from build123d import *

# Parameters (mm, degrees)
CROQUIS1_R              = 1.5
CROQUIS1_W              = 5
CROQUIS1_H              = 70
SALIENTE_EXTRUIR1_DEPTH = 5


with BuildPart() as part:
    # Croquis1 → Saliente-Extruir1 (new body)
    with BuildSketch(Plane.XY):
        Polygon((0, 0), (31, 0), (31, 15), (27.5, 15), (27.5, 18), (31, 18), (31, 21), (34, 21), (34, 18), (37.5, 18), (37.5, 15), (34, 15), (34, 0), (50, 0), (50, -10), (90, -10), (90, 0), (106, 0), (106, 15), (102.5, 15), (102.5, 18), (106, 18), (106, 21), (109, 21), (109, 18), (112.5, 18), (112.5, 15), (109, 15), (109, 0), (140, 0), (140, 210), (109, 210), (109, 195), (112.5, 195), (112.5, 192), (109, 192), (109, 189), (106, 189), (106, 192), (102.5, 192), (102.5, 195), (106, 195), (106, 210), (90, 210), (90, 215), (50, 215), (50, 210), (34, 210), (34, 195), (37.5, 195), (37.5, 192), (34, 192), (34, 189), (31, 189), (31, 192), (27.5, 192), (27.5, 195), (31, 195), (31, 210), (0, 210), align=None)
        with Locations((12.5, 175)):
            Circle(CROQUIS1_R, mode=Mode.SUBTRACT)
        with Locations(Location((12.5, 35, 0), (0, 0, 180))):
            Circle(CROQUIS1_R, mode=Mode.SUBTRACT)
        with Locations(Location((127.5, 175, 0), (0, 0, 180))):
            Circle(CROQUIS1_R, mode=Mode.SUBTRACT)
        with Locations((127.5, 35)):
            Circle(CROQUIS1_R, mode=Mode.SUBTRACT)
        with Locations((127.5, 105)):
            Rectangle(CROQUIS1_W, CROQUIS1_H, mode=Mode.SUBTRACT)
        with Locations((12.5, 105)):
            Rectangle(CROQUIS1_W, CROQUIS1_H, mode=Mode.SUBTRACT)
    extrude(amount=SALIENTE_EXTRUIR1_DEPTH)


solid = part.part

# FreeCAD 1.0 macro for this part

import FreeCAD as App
import Part
import Sketcher
from FreeCAD import Vector
Q = App.Units.Quantity


def add_polygon(sketch, points):
    """Adds a closed chain of lines whose ends are joined by coincident constraints."""
    first, n = sketch.GeometryCount, len(points)
    for a, b in zip(points, points[1:] + points[:1]):
        sketch.addGeometry(Part.LineSegment(App.Vector(*a, 0), App.Vector(*b, 0)), False)
    for i in range(n):
        sketch.addConstraint(Sketcher.Constraint("Coincident", first + i, 2, first + (i + 1) % n, 1))

doc = App.newDocument("Part")
body = doc.addObject("PartDesign::Body", "Body")

# Sketch on XY plane
sketch1 = body.newObject("Sketcher::SketchObject", "Sketch")
sketch1.AttachmentSupport = (doc.getObject("XY_Plane"), [""])
sketch1.MapMode = "FlatFace"
add_polygon(sketch1, [(0, 0), (31, 0), (31, 15), (27.5, 15), (27.5, 18), (31, 18), (31, 21), (34, 21), (34, 18), (37.5, 18), (37.5, 15), (34, 15), (34, 0), (50, 0), (50, -10), (90, -10), (90, 0), (106, 0), (106, 15), (102.5, 15), (102.5, 18), (106, 18), (106, 21), (109, 21), (109, 18), (112.5, 18), (112.5, 15), (109, 15), (109, 0), (140, 0), (140, 210), (109, 210), (109, 195), (112.5, 195), (112.5, 192), (109, 192), (109, 189), (106, 189), (106, 192), (102.5, 192), (102.5, 195), (106, 195), (106, 210), (90, 210), (90, 215), (50, 215), (50, 210), (34, 210), (34, 195), (37.5, 195), (37.5, 192), (34, 192), (34, 189), (31, 189), (31, 192), (27.5, 192), (27.5, 195), (31, 195), (31, 210), (0, 210)])  # lines 0-59
sketch1.addGeometry(Part.Circle(Vector(12.5, 35, 0), Vector(0, 0, 1), 1.5), False)  # 60
sketch1.addGeometry(Part.Circle(Vector(127.5, 35, 0), Vector(0, 0, 1), 1.5), False)  # 61
add_polygon(sketch1, [(15, 70), (10, 70), (10, 140), (15, 140)])  # lines 62-65
sketch1.addGeometry(Part.Circle(Vector(12.5, 175, 0), Vector(0, 0, 1), 1.5), False)  # 66
add_polygon(sketch1, [(130, 70), (125, 70), (125, 140), (130, 140)])  # lines 67-70
sketch1.addGeometry(Part.Circle(Vector(127.5, 175, 0), Vector(0, 0, 1), 1.5), False)  # 71
sketch1.addConstraint(Sketcher.Constraint("Horizontal", 0))
sketch1.addConstraint(Sketcher.Constraint("Vertical", 1))
sketch1.addConstraint(Sketcher.Constraint("Horizontal", 2))
sketch1.addConstraint(Sketcher.Constraint("Vertical", 3))
sketch1.addConstraint(Sketcher.Constraint("Horizontal", 4))
sketch1.addConstraint(Sketcher.Constraint("Vertical", 5))
sketch1.addConstraint(Sketcher.Constraint("Horizontal", 6))
sketch1.addConstraint(Sketcher.Constraint("Vertical", 7))
sketch1.addConstraint(Sketcher.Constraint("Horizontal", 8))
sketch1.addConstraint(Sketcher.Constraint("Vertical", 9))
sketch1.addConstraint(Sketcher.Constraint("Horizontal", 10))
sketch1.addConstraint(Sketcher.Constraint("Vertical", 11))
sketch1.addConstraint(Sketcher.Constraint("Horizontal", 12))
sketch1.addConstraint(Sketcher.Constraint("Vertical", 13))
sketch1.addConstraint(Sketcher.Constraint("Horizontal", 14))
sketch1.addConstraint(Sketcher.Constraint("Vertical", 15))
sketch1.addConstraint(Sketcher.Constraint("Horizontal", 16))
sketch1.addConstraint(Sketcher.Constraint("Vertical", 17))
sketch1.addConstraint(Sketcher.Constraint("Horizontal", 18))
sketch1.addConstraint(Sketcher.Constraint("Vertical", 19))
sketch1.addConstraint(Sketcher.Constraint("Horizontal", 20))
sketch1.addConstraint(Sketcher.Constraint("Vertical", 21))
sketch1.addConstraint(Sketcher.Constraint("Horizontal", 22))
sketch1.addConstraint(Sketcher.Constraint("Vertical", 23))
sketch1.addConstraint(Sketcher.Constraint("Horizontal", 24))
sketch1.addConstraint(Sketcher.Constraint("Vertical", 25))
sketch1.addConstraint(Sketcher.Constraint("Horizontal", 26))
sketch1.addConstraint(Sketcher.Constraint("Vertical", 27))
sketch1.addConstraint(Sketcher.Constraint("Horizontal", 28))
sketch1.addConstraint(Sketcher.Constraint("Vertical", 29))
sketch1.addConstraint(Sketcher.Constraint("Horizontal", 30))
sketch1.addConstraint(Sketcher.Constraint("Vertical", 31))
sketch1.addConstraint(Sketcher.Constraint("Horizontal", 32))
sketch1.addConstraint(Sketcher.Constraint("Vertical", 33))
sketch1.addConstraint(Sketcher.Constraint("Horizontal", 34))
sketch1.addConstraint(Sketcher.Constraint("Vertical", 35))
sketch1.addConstraint(Sketcher.Constraint("Horizontal", 36))
sketch1.addConstraint(Sketcher.Constraint("Vertical", 37))
sketch1.addConstraint(Sketcher.Constraint("Horizontal", 38))
sketch1.addConstraint(Sketcher.Constraint("Vertical", 39))
sketch1.addConstraint(Sketcher.Constraint("Horizontal", 40))
sketch1.addConstraint(Sketcher.Constraint("Vertical", 41))
sketch1.addConstraint(Sketcher.Constraint("Horizontal", 42))
sketch1.addConstraint(Sketcher.Constraint("Vertical", 43))
sketch1.addConstraint(Sketcher.Constraint("Horizontal", 44))
sketch1.addConstraint(Sketcher.Constraint("Vertical", 45))
sketch1.addConstraint(Sketcher.Constraint("Horizontal", 46))
sketch1.addConstraint(Sketcher.Constraint("Vertical", 47))
sketch1.addConstraint(Sketcher.Constraint("Horizontal", 48))
sketch1.addConstraint(Sketcher.Constraint("Vertical", 49))
sketch1.addConstraint(Sketcher.Constraint("Horizontal", 50))
sketch1.addConstraint(Sketcher.Constraint("Vertical", 51))
sketch1.addConstraint(Sketcher.Constraint("Horizontal", 52))
sketch1.addConstraint(Sketcher.Constraint("Vertical", 53))
sketch1.addConstraint(Sketcher.Constraint("Horizontal", 54))
sketch1.addConstraint(Sketcher.Constraint("Vertical", 55))
sketch1.addConstraint(Sketcher.Constraint("Horizontal", 56))
sketch1.addConstraint(Sketcher.Constraint("Vertical", 57))
sketch1.addConstraint(Sketcher.Constraint("Horizontal", 58))
sketch1.addConstraint(Sketcher.Constraint("Vertical", 59))
sketch1.addConstraint(Sketcher.Constraint("Horizontal", 62))
sketch1.addConstraint(Sketcher.Constraint("Vertical", 63))
sketch1.addConstraint(Sketcher.Constraint("Horizontal", 64))
sketch1.addConstraint(Sketcher.Constraint("Vertical", 65))
sketch1.addConstraint(Sketcher.Constraint("Horizontal", 67))
sketch1.addConstraint(Sketcher.Constraint("Vertical", 68))
sketch1.addConstraint(Sketcher.Constraint("Horizontal", 69))
sketch1.addConstraint(Sketcher.Constraint("Vertical", 70))
sketch1.addConstraint(Sketcher.Constraint("Coincident", 59, 2, -1, 1))
sketch1.addConstraint(Sketcher.Constraint("Equal", 60, 61))
sketch1.addConstraint(Sketcher.Constraint("Equal", 61, 66))
sketch1.addConstraint(Sketcher.Constraint("Equal", 66, 71))
sketch1.addConstraint(Sketcher.Constraint("PointOnObject", 11, 2, -1))
sketch1.addConstraint(Sketcher.Constraint("PointOnObject", 15, 2, -1))
sketch1.addConstraint(Sketcher.Constraint("PointOnObject", 27, 2, -1))
sketch1.addConstraint(Sketcher.Constraint("Horizontal", 60, 3, 61, 3))
sketch1.addConstraint(Sketcher.Constraint("Horizontal", 66, 3, 71, 3))
sketch1.addConstraint(Sketcher.Constraint("Horizontal", 4, 2, 7, 2))
sketch1.addConstraint(Sketcher.Constraint("Horizontal", 2, 2, 9, 2))
sketch1.addConstraint(Sketcher.Constraint("Horizontal", 10, 2, 17, 2))
sketch1.addConstraint(Sketcher.Constraint("Horizontal", 8, 2, 19, 2))
sketch1.addConstraint(Sketcher.Constraint("Horizontal", 6, 2, 21, 2))
sketch1.addConstraint(Sketcher.Constraint("Horizontal", 20, 2, 23, 2))
sketch1.addConstraint(Sketcher.Constraint("Horizontal", 18, 2, 25, 2))
sketch1.addConstraint(Sketcher.Constraint("Horizontal", 34, 2, 37, 2))
sketch1.addConstraint(Sketcher.Constraint("Horizontal", 32, 2, 39, 2))
sketch1.addConstraint(Sketcher.Constraint("Horizontal", 30, 2, 41, 2))
sketch1.addConstraint(Sketcher.Constraint("Horizontal", 42, 2, 45, 2))
sketch1.addConstraint(Sketcher.Constraint("Horizontal", 40, 2, 47, 2))
sketch1.addConstraint(Sketcher.Constraint("Horizontal", 38, 2, 49, 2))
sketch1.addConstraint(Sketcher.Constraint("Horizontal", 36, 2, 51, 2))
sketch1.addConstraint(Sketcher.Constraint("Horizontal", 50, 2, 53, 2))
sketch1.addConstraint(Sketcher.Constraint("Horizontal", 48, 2, 55, 2))
sketch1.addConstraint(Sketcher.Constraint("Horizontal", 46, 2, 57, 2))
sketch1.addConstraint(Sketcher.Constraint("Horizontal", 65, 2, 67, 2))
sketch1.addConstraint(Sketcher.Constraint("Horizontal", 64, 2, 68, 2))
sketch1.addConstraint(Sketcher.Constraint("Vertical", 60, 3, 66, 3))
sketch1.addConstraint(Sketcher.Constraint("Vertical", 61, 3, 71, 3))
sketch1.addConstraint(Sketcher.Constraint("Vertical", 1, 2, 4, 2))
sketch1.addConstraint(Sketcher.Constraint("Vertical", 7, 2, 10, 2))
sketch1.addConstraint(Sketcher.Constraint("Vertical", 17, 2, 20, 2))
sketch1.addConstraint(Sketcher.Constraint("Vertical", 23, 2, 26, 2))
sketch1.addConstraint(Sketcher.Constraint("Vertical", 27, 2, 30, 2))
sketch1.addConstraint(Sketcher.Constraint("Vertical", 25, 2, 32, 2))
sketch1.addConstraint(Sketcher.Constraint("Vertical", 31, 2, 34, 2))
sketch1.addConstraint(Sketcher.Constraint("Vertical", 21, 2, 36, 2))
sketch1.addConstraint(Sketcher.Constraint("Vertical", 19, 2, 38, 2))
sketch1.addConstraint(Sketcher.Constraint("Vertical", 37, 2, 40, 2))
sketch1.addConstraint(Sketcher.Constraint("Vertical", 15, 2, 42, 2))
sketch1.addConstraint(Sketcher.Constraint("Vertical", 13, 2, 44, 2))
sketch1.addConstraint(Sketcher.Constraint("Vertical", 11, 2, 46, 2))
sketch1.addConstraint(Sketcher.Constraint("Vertical", 9, 2, 48, 2))
sketch1.addConstraint(Sketcher.Constraint("Vertical", 47, 2, 50, 2))
sketch1.addConstraint(Sketcher.Constraint("Vertical", 5, 2, 52, 2))
sketch1.addConstraint(Sketcher.Constraint("Vertical", 3, 2, 54, 2))
sketch1.addConstraint(Sketcher.Constraint("Vertical", 53, 2, 56, 2))
sketch1.addConstraint(Sketcher.Constraint("Equal", 4, 8))
sketch1.addConstraint(Sketcher.Constraint("Equal", 12, 16))
sketch1.addConstraint(Sketcher.Constraint("Equal", 10, 18))
sketch1.addConstraint(Sketcher.Constraint("Equal", 6, 22))
sketch1.addConstraint(Sketcher.Constraint("Equal", 20, 24))
sketch1.addConstraint(Sketcher.Constraint("Equal", 0, 28))
sketch1.addConstraint(Sketcher.Constraint("Equal", 64, 67))
sketch1.addConstraint(Sketcher.Constraint("Equal", 52, 3))
sketch1.addConstraint(Sketcher.Constraint("Equal", 3, 5))
sketch1.addConstraint(Sketcher.Constraint("Equal", 27, 31))
sketch1.addConstraint(Sketcher.Constraint("Equal", 25, 33))
sketch1.addConstraint(Sketcher.Constraint("Equal", 33, 35))
sketch1.addConstraint(Sketcher.Constraint("Equal", 69, 43))
sketch1.addConstraint(Sketcher.Constraint("Diameter", 60, Q("3 mm")))
sketch1.addConstraint(Sketcher.Constraint("DistanceX", 0, 1, 0, 2, Q("31 mm")))
sketch1.addConstraint(Sketcher.Constraint("DistanceX", 6, 1, 6, 2, Q("3 mm")))
sketch1.addConstraint(Sketcher.Constraint("DistanceX", 12, 1, 12, 2, Q("16 mm")))
sketch1.addConstraint(Sketcher.Constraint("DistanceX", 14, 1, 14, 2, Q("40 mm")))
sketch1.addConstraint(Sketcher.Constraint("DistanceX", 62, 2, 62, 1, Q("5 mm")))
sketch1.addConstraint(Sketcher.Constraint("DistanceY", 1, 1, 1, 2, Q("15 mm")))
sketch1.addConstraint(Sketcher.Constraint("DistanceY", 13, 2, 13, 1, Q("10 mm")))
sketch1.addConstraint(Sketcher.Constraint("DistanceY", 29, 1, 29, 2, Q("210 mm")))
sketch1.addConstraint(Sketcher.Constraint("DistanceY", 63, 1, 63, 2, Q("70 mm")))
sketch1.addConstraint(Sketcher.Constraint("DistanceX", 2, 2, 2, 1, Q("3.5 mm")))
sketch1.addConstraint(Sketcher.Constraint("DistanceY", -1, 1, 60, 3, Q("35 mm")))
sketch1.addConstraint(Sketcher.Constraint("DistanceY", -1, 1, 66, 3, Q("175 mm")))
sketch1.addConstraint(Sketcher.Constraint("DistanceX", -1, 1, 62, 2, Q("10 mm")))
sketch1.addConstraint(Sketcher.Constraint("DistanceY", -1, 1, 62, 2, Q("70 mm")))
sketch1.addConstraint(Sketcher.Constraint("DistanceX", -1, 1, 67, 2, Q("125 mm")))
sketch1.addConstraint(Sketcher.Constraint("DistanceX", -1, 1, 60, 3, Q("12.5 mm")))
sketch1.addConstraint(Sketcher.Constraint("DistanceX", -1, 1, 61, 3, Q("127.5 mm")))
pad1 = body.newObject("PartDesign::Pad", "Pad")
pad1.Profile = sketch1
pad1.Length = 5

doc.recompute()
